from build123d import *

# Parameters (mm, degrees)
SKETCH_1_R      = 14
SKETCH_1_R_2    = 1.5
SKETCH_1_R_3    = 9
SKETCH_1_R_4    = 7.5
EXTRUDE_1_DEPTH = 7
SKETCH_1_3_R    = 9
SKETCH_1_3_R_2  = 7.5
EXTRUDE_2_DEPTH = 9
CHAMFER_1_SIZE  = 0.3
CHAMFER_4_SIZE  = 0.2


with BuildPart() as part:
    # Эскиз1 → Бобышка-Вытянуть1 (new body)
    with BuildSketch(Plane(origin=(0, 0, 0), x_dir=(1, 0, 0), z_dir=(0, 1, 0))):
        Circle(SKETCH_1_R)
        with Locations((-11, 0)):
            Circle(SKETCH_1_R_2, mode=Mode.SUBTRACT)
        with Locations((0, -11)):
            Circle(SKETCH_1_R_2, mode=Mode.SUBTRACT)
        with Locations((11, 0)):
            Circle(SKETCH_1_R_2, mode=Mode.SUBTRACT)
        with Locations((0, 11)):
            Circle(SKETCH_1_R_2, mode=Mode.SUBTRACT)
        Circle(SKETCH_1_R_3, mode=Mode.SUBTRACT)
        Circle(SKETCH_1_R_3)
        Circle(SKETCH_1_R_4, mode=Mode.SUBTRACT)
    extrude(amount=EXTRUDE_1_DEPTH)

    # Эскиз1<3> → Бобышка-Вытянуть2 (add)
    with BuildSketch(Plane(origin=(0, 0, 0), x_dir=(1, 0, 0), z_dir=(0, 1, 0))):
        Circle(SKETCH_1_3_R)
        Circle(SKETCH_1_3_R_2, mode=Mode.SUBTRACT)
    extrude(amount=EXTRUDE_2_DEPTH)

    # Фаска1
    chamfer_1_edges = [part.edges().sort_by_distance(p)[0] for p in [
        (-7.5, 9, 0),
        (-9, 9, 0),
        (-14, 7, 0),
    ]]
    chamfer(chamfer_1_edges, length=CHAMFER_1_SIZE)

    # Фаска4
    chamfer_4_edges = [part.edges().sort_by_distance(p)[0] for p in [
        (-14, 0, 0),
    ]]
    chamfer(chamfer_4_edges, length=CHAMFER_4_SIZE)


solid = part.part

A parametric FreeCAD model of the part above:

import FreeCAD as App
import Part
import Sketcher

V = App.Vector
Q = App.Units.Quantity


def edges_at(feature, points):
    """Names of the edges that pass closest to the given points."""
    edges = feature.Shape.Edges
    near = lambda p: min(range(len(edges)), key=lambda i: edges[i].distToShape(Part.Vertex(*p))[0])
    return sorted({f"Edge{near(p) + 1}" for p in points})

doc = App.newDocument("Part")
body = doc.addObject("PartDesign::Body", "Body")

# Sketch on XZ plane
sketch1 = body.newObject("Sketcher::SketchObject", "Sketch")
sketch1.AttachmentSupport = (doc.getObject("XZ_Plane"), [""])
sketch1.MapMode = "FlatFace"
sketch1.addGeometry([
    Part.Circle(V(0, 0, 0), V(0, 0, 1), 14),  # 0
    Part.Circle(V(0, 11, 0), V(0, 0, 1), 1.5),  # 1
    Part.Circle(V(-11, 0, 0), V(0, 0, 1), 1.5),  # 2
    Part.Circle(V(0, 0, 0), V(0, 0, 1), 7.5),  # 3
    Part.Circle(V(11, 0, 0), V(0, 0, 1), 1.5),  # 4
    Part.Circle(V(0, -11, 0), V(0, 0, 1), 1.5),  # 5
], False)
sketch1.addConstraint([
    Sketcher.Constraint("Coincident", 0, 3, -1, 1),
    Sketcher.Constraint("Coincident", 3, 3, -1, 1),
    Sketcher.Constraint("Equal", 1, 2),
    Sketcher.Constraint("Equal", 2, 4),
    Sketcher.Constraint("Equal", 4, 5),
    Sketcher.Constraint("Symmetric", 2, 3, 4, 3, -1, 1),
    Sketcher.Constraint("Symmetric", 1, 3, 5, 3, -1, 1),
    Sketcher.Constraint("PointOnObject", 1, 3, -2),
    Sketcher.Constraint("PointOnObject", 2, 3, -1),
    Sketcher.Constraint("Diameter", 0, Q("28 mm")),
    Sketcher.Constraint("Diameter", 1, Q("3 mm")),
    Sketcher.Constraint("Diameter", 3, Q("15 mm")),
    Sketcher.Constraint("DistanceY", -1, 1, 1, 3, Q("11 mm")),
    Sketcher.Constraint("DistanceX", 2, 3, -1, 1, Q("11 mm")),
])
pad1 = body.newObject("PartDesign::Pad", "Pad")
pad1.Profile = sketch1
pad1.Length = 7
pad1.Reversed = True

# Sketch on XZ plane
sketch2 = body.newObject("Sketcher::SketchObject", "Sketch001")
sketch2.AttachmentSupport = (doc.getObject("XZ_Plane"), [""])
sketch2.MapMode = "FlatFace"
sketch2.addGeometry([
    Part.Circle(V(0, 0, 0), V(0, 0, 1), 9),
    Part.Circle(V(0, 0, 0), V(0, 0, 1), 7.5),
], False)
sketch2.addConstraint([
    Sketcher.Constraint("Coincident", 0, 3, -1, 1),
    Sketcher.Constraint("Coincident", 1, 3, -1, 1),
    Sketcher.Constraint("Diameter", 0, Q("18 mm")),
    Sketcher.Constraint("Diameter", 1, Q("15 mm")),
])
pad2 = body.newObject("PartDesign::Pad", "Pad001")
pad2.Profile = sketch2
pad2.Length = 9
pad2.Reversed = True
doc.recompute()

chamfer = body.newObject("PartDesign::Chamfer", "Chamfer")
chamfer.Base = (pad2, edges_at(pad2, [(-7.5, 9, 0), (-9, 9, 0), (-14, 7, 0)]))
chamfer.Size = 0.3
doc.recompute()

chamfer2 = body.newObject("PartDesign::Chamfer", "Chamfer001")
chamfer2.Base = (chamfer, edges_at(chamfer, [(-14, 0, 0)]))
chamfer2.Size = 0.2

doc.recompute()
